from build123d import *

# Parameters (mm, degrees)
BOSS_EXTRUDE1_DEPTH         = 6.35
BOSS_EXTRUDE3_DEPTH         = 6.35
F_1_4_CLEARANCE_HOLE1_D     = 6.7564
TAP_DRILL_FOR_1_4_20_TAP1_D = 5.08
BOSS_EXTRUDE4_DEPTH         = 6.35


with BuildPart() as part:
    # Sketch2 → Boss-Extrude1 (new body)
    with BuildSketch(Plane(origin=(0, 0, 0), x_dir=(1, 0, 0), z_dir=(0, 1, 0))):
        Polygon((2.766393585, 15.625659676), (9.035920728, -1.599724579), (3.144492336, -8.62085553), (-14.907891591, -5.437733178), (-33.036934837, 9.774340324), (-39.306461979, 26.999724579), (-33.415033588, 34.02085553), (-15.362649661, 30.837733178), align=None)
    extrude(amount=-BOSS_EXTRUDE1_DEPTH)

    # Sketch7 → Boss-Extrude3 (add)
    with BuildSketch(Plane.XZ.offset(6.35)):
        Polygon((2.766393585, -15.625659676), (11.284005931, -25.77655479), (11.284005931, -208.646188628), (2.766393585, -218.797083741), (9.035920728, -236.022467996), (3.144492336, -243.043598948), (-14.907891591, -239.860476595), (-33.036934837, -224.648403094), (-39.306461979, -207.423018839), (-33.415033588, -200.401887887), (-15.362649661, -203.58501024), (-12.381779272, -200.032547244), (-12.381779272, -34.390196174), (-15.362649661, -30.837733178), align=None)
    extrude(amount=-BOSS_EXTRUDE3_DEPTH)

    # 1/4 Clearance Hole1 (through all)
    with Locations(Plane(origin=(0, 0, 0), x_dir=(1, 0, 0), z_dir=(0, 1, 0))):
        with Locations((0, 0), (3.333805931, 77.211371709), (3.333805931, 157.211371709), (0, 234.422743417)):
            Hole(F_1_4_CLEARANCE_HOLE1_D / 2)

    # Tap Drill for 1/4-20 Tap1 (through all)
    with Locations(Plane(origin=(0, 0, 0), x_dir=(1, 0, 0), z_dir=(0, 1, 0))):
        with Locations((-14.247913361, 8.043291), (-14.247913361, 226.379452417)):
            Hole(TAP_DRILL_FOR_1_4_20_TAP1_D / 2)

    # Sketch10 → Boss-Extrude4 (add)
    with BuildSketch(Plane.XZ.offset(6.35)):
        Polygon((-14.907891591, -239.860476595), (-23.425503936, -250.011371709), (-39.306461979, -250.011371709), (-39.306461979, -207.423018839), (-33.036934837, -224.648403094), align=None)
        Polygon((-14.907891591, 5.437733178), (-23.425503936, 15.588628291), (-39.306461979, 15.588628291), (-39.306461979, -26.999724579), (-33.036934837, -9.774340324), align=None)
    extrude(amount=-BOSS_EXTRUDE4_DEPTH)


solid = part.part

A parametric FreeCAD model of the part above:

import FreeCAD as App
import Part
import Sketcher
Q = App.Units.Quantity


def add_polygon(sketch, points):
    """Adds a closed chain of lines whose ends are joined by coincident constraints."""
    first, n = sketch.GeometryCount, len(points)
    for a, b in zip(points, points[1:] + points[:1]):
        sketch.addGeometry(Part.LineSegment(App.Vector(*a, 0), App.Vector(*b, 0)), False)
    for i in range(n):
        sketch.addConstraint(Sketcher.Constraint("Coincident", first + i, 2, first + (i + 1) % n, 1))

doc = App.newDocument("Part")
params = doc.addObject("Spreadsheet::Sheet", "Params")
for row, (alias, value) in enumerate([
    ("pad1_length", "0.25 in"),
    ("pad2_length", "0.25 in"),
    ("sketch3_diameter", "0.266 in"),
    ("hole_diameter", "0.266 in"),
    ("sketch4_diameter", "0.2 in"),
    ("hole2_diameter", "0.2 in"),
    ("pad3_length", "0.25 in"),
], start=1):
    params.set(f"A{row}", alias)
    params.set(f"B{row}", "=" + value)
    params.setAlias(f"B{row}", alias)

body = doc.addObject("PartDesign::Body", "Body")

# Sketch on XZ plane
sketch1 = doc.addObject("Sketcher::SketchObject", "Sketch")
body.addObject(sketch1)
sketch1.AttachmentSupport = (doc.XZ_Plane, [""])
sketch1.MapMode = "FlatFace"
add_polygon(sketch1, [(9, 2), (3, -16), (-15, -31), (-33, -34), (-39, -27), (-33, -10), (-15, 5), (3, 9)])  # lines 0-7
sketch1.addConstraint(Sketcher.Constraint("Perpendicular", 1, 3))
sketch1.addConstraint(Sketcher.Constraint("Parallel", 0, 4))
sketch1.addConstraint(Sketcher.Constraint("Perpendicular", 3, 5))
sketch1.addConstraint(Sketcher.Constraint("Parallel", 2, 6))
sketch1.addConstraint(Sketcher.Constraint("Perpendicular", 5, 7))
sketch1.addConstraint(Sketcher.Constraint("Equal", 0, 2))
sketch1.addConstraint(Sketcher.Constraint("Equal", 2, 4))
sketch1.addConstraint(Sketcher.Constraint("Equal", 1, 5))
sketch1.addConstraint(Sketcher.Constraint("Angle", 0, Q("-110 deg")))
sketch1.addConstraint(Sketcher.Constraint("Angle", 1, Q("-140 deg")))
sketch1.addConstraint(Sketcher.Constraint("Angle", 2, Q("-170 deg")))
sketch1.addConstraint(Sketcher.Constraint("DistanceX", 2, 2, 4, 2, Q("0.378099 mm")))
sketch1.addConstraint(Sketcher.Constraint("Distance", 0, Q("18.330871 mm")))
sketch1.addConstraint(Sketcher.Constraint("DistanceY", 0, 2, -1, 1, Q("15.62566 mm")))
sketch1.addConstraint(Sketcher.Constraint("DistanceX", 1, 2, -1, 1, Q("15.36265 mm")))
sketch1.addConstraint(Sketcher.Constraint("DistanceY", 4, 2, -1, 1, Q("9.77434 mm")))
pad1 = doc.addObject("PartDesign::Pad", "Pad")
body.addObject(pad1)
pad1.Profile = sketch1
pad1.setExpression("Length", "Params.pad1_length")

# Sketch on XZ plane
sketch2 = doc.addObject("Sketcher::SketchObject", "Sketch001")
body.addObject(sketch2)
sketch2.AttachmentSupport = (doc.XZ_Plane, [""])
sketch2.MapMode = "FlatFace"
sketch2.AttachmentOffset = App.Placement(App.Vector(0, 0, 0.25 * 25.4), App.Rotation())
add_polygon(sketch2, [(11.3, -25.8), (2.8, -15.6), (-15.4, -30.8), (-12.4, -34.4), (-12.4, -200), (-15.4, -203.6), (-33.4, -200.4), (-39.3, -207.4), (-33, -224.6), (-14.9, -239.9), (3.1, -243), (9, -236), (2.8, -218.8), (11.3, -208.6)])  # lines 0-13
sketch2.addConstraint(Sketcher.Constraint("Vertical", 3))
sketch2.addConstraint(Sketcher.Constraint("Vertical", 13))
sketch2.addConstraint(Sketcher.Constraint("Perpendicular", 0, 1))
sketch2.addConstraint(Sketcher.Constraint("Perpendicular", 1, 2))
sketch2.addConstraint(Sketcher.Constraint("Parallel", 4, 6))
sketch2.addConstraint(Sketcher.Constraint("Perpendicular", 6, 8))
sketch2.addConstraint(Sketcher.Constraint("Parallel", 5, 9))
sketch2.addConstraint(Sketcher.Constraint("Perpendicular", 8, 10))
sketch2.addConstraint(Sketcher.Constraint("Parallel", 7, 11))
sketch2.addConstraint(Sketcher.Constraint("Parallel", 10, 12))
sketch2.addConstraint(Sketcher.Constraint("Vertical", 1, 2, 4, 2))
sketch2.addConstraint(Sketcher.Constraint("Vertical", 0, 2, 11, 2))
sketch2.addConstraint(Sketcher.Constraint("Equal", 2, 4))
sketch2.addConstraint(Sketcher.Constraint("Equal", 5, 7))
sketch2.addConstraint(Sketcher.Constraint("Equal", 1, 8))
sketch2.addConstraint(Sketcher.Constraint("Equal", 7, 9))
sketch2.addConstraint(Sketcher.Constraint("Equal", 6, 10))
sketch2.addConstraint(Sketcher.Constraint("Angle", 0, Q("130 deg")))
sketch2.addConstraint(Sketcher.Constraint("Angle", 5, Q("170 deg")))
sketch2.addConstraint(Sketcher.Constraint("Angle", 7, Q("-70 deg")))
sketch2.addConstraint(Sketcher.Constraint("DistanceY", 3, 2, 3, 1, Q("165.642351 mm")))
sketch2.addConstraint(Sketcher.Constraint("DistanceY", 9, 2, -1, 1, Q("243.043599 mm")))
sketch2.addConstraint(Sketcher.Constraint("DistanceX", 5, 2, 7, 2, Q("0.378099 mm")))
sketch2.addConstraint(Sketcher.Constraint("DistanceX", 3, 2, 10, 2, Q("21.4177 mm")))
sketch2.addConstraint(Sketcher.Constraint("Distance", 2, Q("4.637411 mm")))
sketch2.addConstraint(Sketcher.Constraint("Distance", 5, Q("18.330871 mm")))
sketch2.addConstraint(Sketcher.Constraint("DistanceY", 13, 1, 13, 2, Q("182.869634 mm")))
sketch2.addConstraint(Sketcher.Constraint("DistanceX", 1, 2, -1, 1, Q("15.36265 mm")))
pad2 = doc.addObject("PartDesign::Pad", "Pad001")
body.addObject(pad2)
pad2.Profile = sketch2
pad2.setExpression("Length", "Params.pad2_length")
pad2.Reversed = True

# Sketch on XZ plane
sketch3 = doc.addObject("Sketcher::SketchObject", "Sketch002")
body.addObject(sketch3)
sketch3.AttachmentSupport = (doc.XZ_Plane, [""])
sketch3.MapMode = "FlatFace"
sketch3.addGeometry(Part.Circle(App.Vector(0, 0, 0), App.Vector(0, 0, 1), 3.4), False)
sketch3.addGeometry(Part.Circle(App.Vector(3.3, -77.2, 0), App.Vector(0, 0, 1), 3.4), False)
sketch3.addGeometry(Part.Circle(App.Vector(3.3, -157.2, 0), App.Vector(0, 0, 1), 3.4), False)
sketch3.addGeometry(Part.Circle(App.Vector(0, -234.4, 0), App.Vector(0, 0, 1), 3.4), False)
sketch3.addConstraint(Sketcher.Constraint("Coincident", 0, 3, -1, 1))
sketch3.addConstraint(Sketcher.Constraint("Equal", 0, 1))
sketch3.addConstraint(Sketcher.Constraint("Equal", 1, 2))
sketch3.addConstraint(Sketcher.Constraint("Equal", 2, 3))
sketch3.addConstraint(Sketcher.Constraint("PointOnObject", 3, 3, -2))
sketch3.addConstraint(Sketcher.Constraint("Vertical", 1, 3, 2, 3))
sketch3.addConstraint(Sketcher.Constraint("Diameter", 0, Q("0.266 in")))
sketch3.addConstraint(Sketcher.Constraint("DistanceY", 2, 3, 1, 3, Q("80 mm")))
sketch3.addConstraint(Sketcher.Constraint("DistanceY", 1, 3, -1, 1, Q("77.211372 mm")))
sketch3.addConstraint(Sketcher.Constraint("DistanceY", 3, 3, 2, 3, Q("77.211372 mm")))
sketch3.addConstraint(Sketcher.Constraint("DistanceX", -1, 1, 1, 3, Q("3.333806 mm")))
sketch3.setExpression("Constraints[6]", "Params.sketch3_diameter")
doc.recompute()
hole = doc.addObject("PartDesign::Hole", "Hole")
body.addObject(hole)
hole.Profile = sketch3
hole.ThreadType = "None"
hole.setExpression("Diameter", "Params.hole_diameter")
hole.DepthType = "ThroughAll"
hole.Reversed = True

# Sketch on XZ plane
sketch4 = doc.addObject("Sketcher::SketchObject", "Sketch003")
body.addObject(sketch4)
sketch4.AttachmentSupport = (doc.XZ_Plane, [""])
sketch4.MapMode = "FlatFace"
sketch4.addGeometry(Part.Circle(App.Vector(-14.2, -8, 0), App.Vector(0, 0, 1), 2.5), False)
sketch4.addGeometry(Part.Circle(App.Vector(-14.2, -226.4, 0), App.Vector(0, 0, 1), 2.5), False)
sketch4.addConstraint(Sketcher.Constraint("Equal", 0, 1))
sketch4.addConstraint(Sketcher.Constraint("Vertical", 0, 3, 1, 3))
sketch4.addConstraint(Sketcher.Constraint("Diameter", 0, Q("0.2 in")))
sketch4.addConstraint(Sketcher.Constraint("DistanceY", 0, 3, -1, 1, Q("8.043291 mm")))
sketch4.addConstraint(Sketcher.Constraint("DistanceY", 1, 3, 0, 3, Q("218.336161 mm")))
sketch4.addConstraint(Sketcher.Constraint("DistanceX", 0, 3, -1, 1, Q("14.247913 mm")))
sketch4.setExpression("Constraints[2]", "Params.sketch4_diameter")
doc.recompute()
hole2 = doc.addObject("PartDesign::Hole", "Hole001")
body.addObject(hole2)
hole2.Profile = sketch4
hole2.ThreadType = "None"
hole2.setExpression("Diameter", "Params.hole2_diameter")
hole2.DepthType = "ThroughAll"
hole2.Reversed = True

# Sketch on XZ plane
sketch5 = doc.addObject("Sketcher::SketchObject", "Sketch004")
body.addObject(sketch5)
sketch5.AttachmentSupport = (doc.XZ_Plane, [""])
sketch5.MapMode = "FlatFace"
sketch5.AttachmentOffset = App.Placement(App.Vector(0, 0, 0.25 * 25.4), App.Rotation())
add_polygon(sketch5, [(-23, -250), (-15, -240), (-33, -225), (-39, -207), (-39, -250)])  # lines 0-4
add_polygon(sketch5, [(-15, 5), (-23, 16), (-39, 16), (-39, -27), (-33, -10)])  # lines 5-9
sketch5.addConstraint(Sketcher.Constraint("Vertical", 3))
sketch5.addConstraint(Sketcher.Constraint("Horizontal", 4))
sketch5.addConstraint(Sketcher.Constraint("Horizontal", 6))
sketch5.addConstraint(Sketcher.Constraint("Vertical", 7))
sketch5.addConstraint(Sketcher.Constraint("Perpendicular", 0, 1))
sketch5.addConstraint(Sketcher.Constraint("Perpendicular", 5, 9))
sketch5.addConstraint(Sketcher.Constraint("Vertical", 4, 2, 5, 2))
sketch5.addConstraint(Sketcher.Constraint("Vertical", 3, 2, 6, 2))
sketch5.addConstraint(Sketcher.Constraint("Vertical", 1, 2, 8, 2))
sketch5.addConstraint(Sketcher.Constraint("Vertical", 0, 2, 9, 2))
sketch5.addConstraint(Sketcher.Constraint("Equal", 3, 7))
sketch5.addConstraint(Sketcher.Constraint("Equal", 0, 5))
sketch5.addConstraint(Sketcher.Constraint("Angle", 0, Q("50 deg")))
sketch5.addConstraint(Sketcher.Constraint("Angle", 2, Q("110 deg")))
sketch5.addConstraint(Sketcher.Constraint("DistanceX", 4, 1, 4, 2, Q("15.880958 mm")))
sketch5.addConstraint(Sketcher.Constraint("DistanceY", 4, 2, 5, 2, Q("265.6 mm")))
sketch5.addConstraint(Sketcher.Constraint("Distance", 2, Q("18.330871 mm")))
sketch5.addConstraint(Sketcher.Constraint("DistanceY", 3, 2, 3, 1, Q("42.588353 mm")))
sketch5.addConstraint(Sketcher.Constraint("DistanceX", 0, 2, -1, 1, Q("14.907892 mm")))
sketch5.addConstraint(Sketcher.Constraint("DistanceY", 2, 2, -1, 1, Q("207.423019 mm")))
pad3 = doc.addObject("PartDesign::Pad", "Pad002")
body.addObject(pad3)
pad3.Profile = sketch5
pad3.setExpression("Length", "Params.pad3_length")
pad3.Reversed = True

doc.recompute()
